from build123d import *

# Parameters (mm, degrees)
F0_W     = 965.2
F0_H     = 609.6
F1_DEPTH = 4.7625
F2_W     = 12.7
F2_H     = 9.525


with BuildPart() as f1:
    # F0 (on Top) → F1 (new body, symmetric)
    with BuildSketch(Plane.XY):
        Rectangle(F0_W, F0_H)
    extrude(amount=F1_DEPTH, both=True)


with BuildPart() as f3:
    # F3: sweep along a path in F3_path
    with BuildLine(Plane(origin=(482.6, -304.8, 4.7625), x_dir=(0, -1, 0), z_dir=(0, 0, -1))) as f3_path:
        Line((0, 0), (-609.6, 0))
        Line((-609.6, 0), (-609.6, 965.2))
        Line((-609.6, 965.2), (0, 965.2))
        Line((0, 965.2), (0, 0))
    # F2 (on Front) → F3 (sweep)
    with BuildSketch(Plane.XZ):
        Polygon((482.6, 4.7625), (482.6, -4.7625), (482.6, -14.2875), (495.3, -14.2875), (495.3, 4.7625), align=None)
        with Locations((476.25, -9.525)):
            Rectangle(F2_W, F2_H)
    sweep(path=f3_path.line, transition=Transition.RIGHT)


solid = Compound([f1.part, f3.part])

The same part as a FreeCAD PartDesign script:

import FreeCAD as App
import Part
import Sketcher

V = App.Vector
Q = App.Units.Quantity

doc = App.newDocument("Part")
body = doc.addObject("PartDesign::Body", "Body")

# Sketch on XY plane
sketch1 = doc.addObject("Sketcher::SketchObject", "Sketch")
body.addObject(sketch1)
sketch1.AttachmentSupport = (doc.XY_Plane, [""])
sketch1.MapMode = "FlatFace"
sketch1.addGeometry([
    Part.LineSegment(V(-483, 305, 0), V(-483, -305, 0)),
    Part.LineSegment(V(-483, -305, 0), V(483, -305, 0)),
    Part.LineSegment(V(483, -305, 0), V(483, 305, 0)),
    Part.LineSegment(V(483, 305, 0), V(-483, 305, 0)),
], False)
sketch1.addConstraint([
    Sketcher.Constraint("Coincident", 0, 2, 1, 1),
    Sketcher.Constraint("Coincident", 1, 2, 2, 1),
    Sketcher.Constraint("Coincident", 2, 2, 3, 1),
    Sketcher.Constraint("Coincident", 3, 2, 0, 1),
    Sketcher.Constraint("Vertical", 0),
    Sketcher.Constraint("Horizontal", 1),
    Sketcher.Constraint("Vertical", 2),
    Sketcher.Constraint("Horizontal", 3),
    Sketcher.Constraint("Symmetric", 0, 2, 2, 2, -1, 1),
    Sketcher.Constraint("DistanceX", 1, 1, 1, 2, Q("38 in")),
    Sketcher.Constraint("DistanceY", 0, 2, 0, 1, Q("24 in")),
])
pad1 = doc.addObject("PartDesign::Pad", "Pad")
body.addObject(pad1)
pad1.Profile = sketch1
pad1.Length = Q("0.375 in")
pad1.Midplane = True
body2 = doc.addObject("PartDesign::Body", "Body001")

# Sketch on XZ plane
sketch2 = doc.addObject("Sketcher::SketchObject", "Sketch001")
body2.addObject(sketch2)
sketch2.AttachmentSupport = (doc.getObject("XZ_Plane001"), [""])
sketch2.MapMode = "FlatFace"
sketch2.addGeometry([
    Part.LineSegment(V(483, 5, 0), V(483, -5, 0)),  # 0
    Part.LineSegment(V(483, -5, 0), V(470, -5, 0)),  # 1
    Part.LineSegment(V(470, -5, 0), V(470, -14, 0)),  # 2
    Part.LineSegment(V(470, -14, 0), V(495, -14, 0)),  # 3
    Part.LineSegment(V(495, -14, 0), V(495, 5, 0)),  # 4
    Part.LineSegment(V(495, 5, 0), V(483, 5, 0)),  # 5
], False)
sketch2.addConstraint([
    Sketcher.Constraint("Coincident", 0, 2, 1, 1),
    Sketcher.Constraint("Coincident", 1, 2, 2, 1),
    Sketcher.Constraint("Coincident", 2, 2, 3, 1),
    Sketcher.Constraint("Coincident", 3, 2, 4, 1),
    Sketcher.Constraint("Coincident", 4, 2, 5, 1),
    Sketcher.Constraint("Coincident", 5, 2, 0, 1),
    Sketcher.Constraint("Vertical", 0),
    Sketcher.Constraint("Horizontal", 1),
    Sketcher.Constraint("Vertical", 2),
    Sketcher.Constraint("Horizontal", 3),
    Sketcher.Constraint("Vertical", 4),
    Sketcher.Constraint("Horizontal", 5),
    Sketcher.Constraint("Equal", 1, 5),
    Sketcher.Constraint("Equal", 0, 2),
    Sketcher.Constraint("DistanceX", 3, 1, 3, 2, Q("1 in")),
    Sketcher.Constraint("DistanceX", -1, 1, 0, 2, Q("19 in")),
    Sketcher.Constraint("DistanceY", 4, 1, 4, 2, Q("0.75 in")),
    Sketcher.Constraint("DistanceY", 0, 2, -1, 1, Q("0.1875 in")),
])

# Sketch on XY plane
sketch3 = doc.addObject("Sketcher::SketchObject", "Sketch002")
body2.addObject(sketch3)
sketch3.AttachmentSupport = (doc.getObject("XY_Plane001"), [""])
sketch3.MapMode = "FlatFace"
sketch3.AttachmentOffset = App.Placement(V(0, 0, 0.1875 * 25.4), App.Rotation())
sketch3.addGeometry([
    Part.LineSegment(V(483, -305, 0), V(483, 305, 0)),
    Part.LineSegment(V(483, 305, 0), V(-483, 305, 0)),
    Part.LineSegment(V(-483, 305, 0), V(-483, -305, 0)),
    Part.LineSegment(V(-483, -305, 0), V(483, -305, 0)),
], False)
sketch3.addConstraint([
    Sketcher.Constraint("Coincident", 0, 2, 1, 1),
    Sketcher.Constraint("Coincident", 1, 2, 2, 1),
    Sketcher.Constraint("Coincident", 2, 2, 3, 1),
    Sketcher.Constraint("Coincident", 3, 2, 0, 1),
    Sketcher.Constraint("Vertical", 0),
    Sketcher.Constraint("Horizontal", 1),
    Sketcher.Constraint("Vertical", 2),
    Sketcher.Constraint("Horizontal", 3),
    Sketcher.Constraint("Symmetric", 0, 2, 2, 2, -1, 1),
    Sketcher.Constraint("DistanceX", 1, 2, 1, 1, Q("38 in")),
    Sketcher.Constraint("DistanceY", 0, 1, 0, 2, Q("24 in")),
])
doc.recompute()

additivepipe = doc.addObject("PartDesign::AdditivePipe", "AdditivePipe")
body2.addObject(additivepipe)
additivepipe.Profile = sketch2
additivepipe.Spine = (sketch3, ["Edge1", "Edge2", "Edge3", "Edge4"])
additivepipe.Transition = "Right corner"

doc.recompute()
